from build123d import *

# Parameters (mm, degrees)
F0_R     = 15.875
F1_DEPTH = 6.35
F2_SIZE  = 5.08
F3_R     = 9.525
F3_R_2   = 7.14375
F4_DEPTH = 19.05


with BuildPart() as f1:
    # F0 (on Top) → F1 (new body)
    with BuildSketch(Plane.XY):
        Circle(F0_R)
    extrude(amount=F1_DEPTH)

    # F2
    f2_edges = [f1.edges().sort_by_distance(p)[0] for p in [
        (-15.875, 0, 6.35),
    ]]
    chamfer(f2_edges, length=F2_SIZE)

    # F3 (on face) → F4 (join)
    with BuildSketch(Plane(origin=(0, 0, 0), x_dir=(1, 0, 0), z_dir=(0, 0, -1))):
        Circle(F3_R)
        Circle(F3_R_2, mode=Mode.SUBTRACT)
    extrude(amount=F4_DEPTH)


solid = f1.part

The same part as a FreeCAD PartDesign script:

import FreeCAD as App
import Part
import Sketcher
from FreeCAD import Vector
Q = App.Units.Quantity


def edges_at(feature, points):
    """Names of the edges that pass closest to the given points."""
    edges = feature.Shape.Edges
    near = lambda p: min(range(len(edges)), key=lambda i: edges[i].distToShape(Part.Vertex(*p))[0])
    return sorted({f"Edge{near(p) + 1}" for p in points})

doc = App.newDocument("Part")
params = doc.addObject("Spreadsheet::Sheet", "Params")
for row, (alias, value) in enumerate([
    ("sketch1_diameter", "1.25 in"),
    ("pad1_length", "0.25 in"),
    ("chamfer_size", "0.2 in"),
    ("sketch2_diameter", "0.75 in"),
    ("sketch2_diameter2", "0.5625 in"),
    ("pad2_length", "0.75 in"),
], start=1):
    params.set(f"A{row}", alias)
    params.set(f"B{row}", "=" + value)
    params.setAlias(f"B{row}", alias)

body = doc.addObject("PartDesign::Body", "Body")

sketch1 = doc.addObject("Sketcher::SketchObject", "Sketch")
body.addObject(sketch1)
sketch1.AttachmentSupport = (doc.XY_Plane, [""])
sketch1.MapMode = "FlatFace"
sketch1.addGeometry(Part.Circle(Vector(0, 0, 0), Vector(0, 0, 1), 15.875), False)
sketch1.addConstraint([
    Sketcher.Constraint("Coincident", 0, 3, -1, 1),
    Sketcher.Constraint("Diameter", 0, Q("1.25 in")),
])
sketch1.setExpression("Constraints[1]", "Params.sketch1_diameter")
pad1 = doc.addObject("PartDesign::Pad", "Pad")
body.addObject(pad1)
pad1.Profile = sketch1
pad1.setExpression("Length", "Params.pad1_length")
doc.recompute()

chamfer = doc.addObject("PartDesign::Chamfer", "Chamfer")
body.addObject(chamfer)
chamfer.Base = (pad1, edges_at(pad1, [(-15.875, 0, 6.35)]))
chamfer.setExpression("Size", "Params.chamfer_size")

sketch2 = doc.addObject("Sketcher::SketchObject", "Sketch001")
body.addObject(sketch2)
sketch2.AttachmentSupport = (doc.XY_Plane, [""])
sketch2.MapMode = "FlatFace"
sketch2.addGeometry([
    Part.Circle(Vector(0, 0, 0), Vector(0, 0, 1), 9.525),
    Part.Circle(Vector(0, 0, 0), Vector(0, 0, 1), 7.14375),
], False)
sketch2.addConstraint([
    Sketcher.Constraint("Coincident", 0, 3, -1, 1),
    Sketcher.Constraint("Coincident", 1, 3, -1, 1),
    Sketcher.Constraint("Diameter", 0, Q("0.75 in")),
    Sketcher.Constraint("Diameter", 1, Q("0.5625 in")),
])
sketch2.setExpression("Constraints[2]", "Params.sketch2_diameter")
sketch2.setExpression("Constraints[3]", "Params.sketch2_diameter2")
pad2 = doc.addObject("PartDesign::Pad", "Pad001")
body.addObject(pad2)
pad2.Profile = sketch2
pad2.setExpression("Length", "Params.pad2_length")
pad2.Reversed = True

doc.recompute()
